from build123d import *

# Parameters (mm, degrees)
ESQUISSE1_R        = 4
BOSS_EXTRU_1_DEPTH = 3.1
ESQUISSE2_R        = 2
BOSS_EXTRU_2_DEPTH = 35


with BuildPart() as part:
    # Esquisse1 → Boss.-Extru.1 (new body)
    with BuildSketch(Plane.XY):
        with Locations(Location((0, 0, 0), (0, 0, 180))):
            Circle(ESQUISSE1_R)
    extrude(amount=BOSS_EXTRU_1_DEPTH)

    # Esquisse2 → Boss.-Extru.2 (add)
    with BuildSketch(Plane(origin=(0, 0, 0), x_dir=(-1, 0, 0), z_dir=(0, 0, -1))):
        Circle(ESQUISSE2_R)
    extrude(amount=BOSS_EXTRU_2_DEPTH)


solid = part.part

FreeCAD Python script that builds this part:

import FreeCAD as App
import Part
import Sketcher

V = App.Vector

doc = App.newDocument("Part")
body = doc.addObject("PartDesign::Body", "Body")

sketch1 = body.newObject("Sketcher::SketchObject", "Sketch")
sketch1.AttachmentSupport = (doc.getObject("XY_Plane"), [""])
sketch1.MapMode = "FlatFace"
sketch1.addGeometry(Part.Circle(V(0, 0, 0), V(0, 0, 1), 4), False)
sketch1.addConstraint([
    Sketcher.Constraint("Coincident", 0, 3, -1, 1),
    Sketcher.Constraint("Diameter", 0, 8.0),
])
pad1 = body.newObject("PartDesign::Pad", "Pad")
pad1.Profile = sketch1
pad1.Length = 3.1

sketch2 = body.newObject("Sketcher::SketchObject", "Sketch001")
sketch2.AttachmentSupport = (doc.getObject("XY_Plane"), [""])
sketch2.MapMode = "FlatFace"
sketch2.addGeometry(Part.Circle(V(0, 0, 0), V(0, 0, 1), 2), False)
sketch2.addConstraint([
    Sketcher.Constraint("Coincident", 0, 3, -1, 1),
    Sketcher.Constraint("Diameter", 0, 4.0),
])
pad2 = body.newObject("PartDesign::Pad", "Pad001")
pad2.Profile = sketch2
pad2.Length = 35
pad2.Reversed = True

doc.recompute()
